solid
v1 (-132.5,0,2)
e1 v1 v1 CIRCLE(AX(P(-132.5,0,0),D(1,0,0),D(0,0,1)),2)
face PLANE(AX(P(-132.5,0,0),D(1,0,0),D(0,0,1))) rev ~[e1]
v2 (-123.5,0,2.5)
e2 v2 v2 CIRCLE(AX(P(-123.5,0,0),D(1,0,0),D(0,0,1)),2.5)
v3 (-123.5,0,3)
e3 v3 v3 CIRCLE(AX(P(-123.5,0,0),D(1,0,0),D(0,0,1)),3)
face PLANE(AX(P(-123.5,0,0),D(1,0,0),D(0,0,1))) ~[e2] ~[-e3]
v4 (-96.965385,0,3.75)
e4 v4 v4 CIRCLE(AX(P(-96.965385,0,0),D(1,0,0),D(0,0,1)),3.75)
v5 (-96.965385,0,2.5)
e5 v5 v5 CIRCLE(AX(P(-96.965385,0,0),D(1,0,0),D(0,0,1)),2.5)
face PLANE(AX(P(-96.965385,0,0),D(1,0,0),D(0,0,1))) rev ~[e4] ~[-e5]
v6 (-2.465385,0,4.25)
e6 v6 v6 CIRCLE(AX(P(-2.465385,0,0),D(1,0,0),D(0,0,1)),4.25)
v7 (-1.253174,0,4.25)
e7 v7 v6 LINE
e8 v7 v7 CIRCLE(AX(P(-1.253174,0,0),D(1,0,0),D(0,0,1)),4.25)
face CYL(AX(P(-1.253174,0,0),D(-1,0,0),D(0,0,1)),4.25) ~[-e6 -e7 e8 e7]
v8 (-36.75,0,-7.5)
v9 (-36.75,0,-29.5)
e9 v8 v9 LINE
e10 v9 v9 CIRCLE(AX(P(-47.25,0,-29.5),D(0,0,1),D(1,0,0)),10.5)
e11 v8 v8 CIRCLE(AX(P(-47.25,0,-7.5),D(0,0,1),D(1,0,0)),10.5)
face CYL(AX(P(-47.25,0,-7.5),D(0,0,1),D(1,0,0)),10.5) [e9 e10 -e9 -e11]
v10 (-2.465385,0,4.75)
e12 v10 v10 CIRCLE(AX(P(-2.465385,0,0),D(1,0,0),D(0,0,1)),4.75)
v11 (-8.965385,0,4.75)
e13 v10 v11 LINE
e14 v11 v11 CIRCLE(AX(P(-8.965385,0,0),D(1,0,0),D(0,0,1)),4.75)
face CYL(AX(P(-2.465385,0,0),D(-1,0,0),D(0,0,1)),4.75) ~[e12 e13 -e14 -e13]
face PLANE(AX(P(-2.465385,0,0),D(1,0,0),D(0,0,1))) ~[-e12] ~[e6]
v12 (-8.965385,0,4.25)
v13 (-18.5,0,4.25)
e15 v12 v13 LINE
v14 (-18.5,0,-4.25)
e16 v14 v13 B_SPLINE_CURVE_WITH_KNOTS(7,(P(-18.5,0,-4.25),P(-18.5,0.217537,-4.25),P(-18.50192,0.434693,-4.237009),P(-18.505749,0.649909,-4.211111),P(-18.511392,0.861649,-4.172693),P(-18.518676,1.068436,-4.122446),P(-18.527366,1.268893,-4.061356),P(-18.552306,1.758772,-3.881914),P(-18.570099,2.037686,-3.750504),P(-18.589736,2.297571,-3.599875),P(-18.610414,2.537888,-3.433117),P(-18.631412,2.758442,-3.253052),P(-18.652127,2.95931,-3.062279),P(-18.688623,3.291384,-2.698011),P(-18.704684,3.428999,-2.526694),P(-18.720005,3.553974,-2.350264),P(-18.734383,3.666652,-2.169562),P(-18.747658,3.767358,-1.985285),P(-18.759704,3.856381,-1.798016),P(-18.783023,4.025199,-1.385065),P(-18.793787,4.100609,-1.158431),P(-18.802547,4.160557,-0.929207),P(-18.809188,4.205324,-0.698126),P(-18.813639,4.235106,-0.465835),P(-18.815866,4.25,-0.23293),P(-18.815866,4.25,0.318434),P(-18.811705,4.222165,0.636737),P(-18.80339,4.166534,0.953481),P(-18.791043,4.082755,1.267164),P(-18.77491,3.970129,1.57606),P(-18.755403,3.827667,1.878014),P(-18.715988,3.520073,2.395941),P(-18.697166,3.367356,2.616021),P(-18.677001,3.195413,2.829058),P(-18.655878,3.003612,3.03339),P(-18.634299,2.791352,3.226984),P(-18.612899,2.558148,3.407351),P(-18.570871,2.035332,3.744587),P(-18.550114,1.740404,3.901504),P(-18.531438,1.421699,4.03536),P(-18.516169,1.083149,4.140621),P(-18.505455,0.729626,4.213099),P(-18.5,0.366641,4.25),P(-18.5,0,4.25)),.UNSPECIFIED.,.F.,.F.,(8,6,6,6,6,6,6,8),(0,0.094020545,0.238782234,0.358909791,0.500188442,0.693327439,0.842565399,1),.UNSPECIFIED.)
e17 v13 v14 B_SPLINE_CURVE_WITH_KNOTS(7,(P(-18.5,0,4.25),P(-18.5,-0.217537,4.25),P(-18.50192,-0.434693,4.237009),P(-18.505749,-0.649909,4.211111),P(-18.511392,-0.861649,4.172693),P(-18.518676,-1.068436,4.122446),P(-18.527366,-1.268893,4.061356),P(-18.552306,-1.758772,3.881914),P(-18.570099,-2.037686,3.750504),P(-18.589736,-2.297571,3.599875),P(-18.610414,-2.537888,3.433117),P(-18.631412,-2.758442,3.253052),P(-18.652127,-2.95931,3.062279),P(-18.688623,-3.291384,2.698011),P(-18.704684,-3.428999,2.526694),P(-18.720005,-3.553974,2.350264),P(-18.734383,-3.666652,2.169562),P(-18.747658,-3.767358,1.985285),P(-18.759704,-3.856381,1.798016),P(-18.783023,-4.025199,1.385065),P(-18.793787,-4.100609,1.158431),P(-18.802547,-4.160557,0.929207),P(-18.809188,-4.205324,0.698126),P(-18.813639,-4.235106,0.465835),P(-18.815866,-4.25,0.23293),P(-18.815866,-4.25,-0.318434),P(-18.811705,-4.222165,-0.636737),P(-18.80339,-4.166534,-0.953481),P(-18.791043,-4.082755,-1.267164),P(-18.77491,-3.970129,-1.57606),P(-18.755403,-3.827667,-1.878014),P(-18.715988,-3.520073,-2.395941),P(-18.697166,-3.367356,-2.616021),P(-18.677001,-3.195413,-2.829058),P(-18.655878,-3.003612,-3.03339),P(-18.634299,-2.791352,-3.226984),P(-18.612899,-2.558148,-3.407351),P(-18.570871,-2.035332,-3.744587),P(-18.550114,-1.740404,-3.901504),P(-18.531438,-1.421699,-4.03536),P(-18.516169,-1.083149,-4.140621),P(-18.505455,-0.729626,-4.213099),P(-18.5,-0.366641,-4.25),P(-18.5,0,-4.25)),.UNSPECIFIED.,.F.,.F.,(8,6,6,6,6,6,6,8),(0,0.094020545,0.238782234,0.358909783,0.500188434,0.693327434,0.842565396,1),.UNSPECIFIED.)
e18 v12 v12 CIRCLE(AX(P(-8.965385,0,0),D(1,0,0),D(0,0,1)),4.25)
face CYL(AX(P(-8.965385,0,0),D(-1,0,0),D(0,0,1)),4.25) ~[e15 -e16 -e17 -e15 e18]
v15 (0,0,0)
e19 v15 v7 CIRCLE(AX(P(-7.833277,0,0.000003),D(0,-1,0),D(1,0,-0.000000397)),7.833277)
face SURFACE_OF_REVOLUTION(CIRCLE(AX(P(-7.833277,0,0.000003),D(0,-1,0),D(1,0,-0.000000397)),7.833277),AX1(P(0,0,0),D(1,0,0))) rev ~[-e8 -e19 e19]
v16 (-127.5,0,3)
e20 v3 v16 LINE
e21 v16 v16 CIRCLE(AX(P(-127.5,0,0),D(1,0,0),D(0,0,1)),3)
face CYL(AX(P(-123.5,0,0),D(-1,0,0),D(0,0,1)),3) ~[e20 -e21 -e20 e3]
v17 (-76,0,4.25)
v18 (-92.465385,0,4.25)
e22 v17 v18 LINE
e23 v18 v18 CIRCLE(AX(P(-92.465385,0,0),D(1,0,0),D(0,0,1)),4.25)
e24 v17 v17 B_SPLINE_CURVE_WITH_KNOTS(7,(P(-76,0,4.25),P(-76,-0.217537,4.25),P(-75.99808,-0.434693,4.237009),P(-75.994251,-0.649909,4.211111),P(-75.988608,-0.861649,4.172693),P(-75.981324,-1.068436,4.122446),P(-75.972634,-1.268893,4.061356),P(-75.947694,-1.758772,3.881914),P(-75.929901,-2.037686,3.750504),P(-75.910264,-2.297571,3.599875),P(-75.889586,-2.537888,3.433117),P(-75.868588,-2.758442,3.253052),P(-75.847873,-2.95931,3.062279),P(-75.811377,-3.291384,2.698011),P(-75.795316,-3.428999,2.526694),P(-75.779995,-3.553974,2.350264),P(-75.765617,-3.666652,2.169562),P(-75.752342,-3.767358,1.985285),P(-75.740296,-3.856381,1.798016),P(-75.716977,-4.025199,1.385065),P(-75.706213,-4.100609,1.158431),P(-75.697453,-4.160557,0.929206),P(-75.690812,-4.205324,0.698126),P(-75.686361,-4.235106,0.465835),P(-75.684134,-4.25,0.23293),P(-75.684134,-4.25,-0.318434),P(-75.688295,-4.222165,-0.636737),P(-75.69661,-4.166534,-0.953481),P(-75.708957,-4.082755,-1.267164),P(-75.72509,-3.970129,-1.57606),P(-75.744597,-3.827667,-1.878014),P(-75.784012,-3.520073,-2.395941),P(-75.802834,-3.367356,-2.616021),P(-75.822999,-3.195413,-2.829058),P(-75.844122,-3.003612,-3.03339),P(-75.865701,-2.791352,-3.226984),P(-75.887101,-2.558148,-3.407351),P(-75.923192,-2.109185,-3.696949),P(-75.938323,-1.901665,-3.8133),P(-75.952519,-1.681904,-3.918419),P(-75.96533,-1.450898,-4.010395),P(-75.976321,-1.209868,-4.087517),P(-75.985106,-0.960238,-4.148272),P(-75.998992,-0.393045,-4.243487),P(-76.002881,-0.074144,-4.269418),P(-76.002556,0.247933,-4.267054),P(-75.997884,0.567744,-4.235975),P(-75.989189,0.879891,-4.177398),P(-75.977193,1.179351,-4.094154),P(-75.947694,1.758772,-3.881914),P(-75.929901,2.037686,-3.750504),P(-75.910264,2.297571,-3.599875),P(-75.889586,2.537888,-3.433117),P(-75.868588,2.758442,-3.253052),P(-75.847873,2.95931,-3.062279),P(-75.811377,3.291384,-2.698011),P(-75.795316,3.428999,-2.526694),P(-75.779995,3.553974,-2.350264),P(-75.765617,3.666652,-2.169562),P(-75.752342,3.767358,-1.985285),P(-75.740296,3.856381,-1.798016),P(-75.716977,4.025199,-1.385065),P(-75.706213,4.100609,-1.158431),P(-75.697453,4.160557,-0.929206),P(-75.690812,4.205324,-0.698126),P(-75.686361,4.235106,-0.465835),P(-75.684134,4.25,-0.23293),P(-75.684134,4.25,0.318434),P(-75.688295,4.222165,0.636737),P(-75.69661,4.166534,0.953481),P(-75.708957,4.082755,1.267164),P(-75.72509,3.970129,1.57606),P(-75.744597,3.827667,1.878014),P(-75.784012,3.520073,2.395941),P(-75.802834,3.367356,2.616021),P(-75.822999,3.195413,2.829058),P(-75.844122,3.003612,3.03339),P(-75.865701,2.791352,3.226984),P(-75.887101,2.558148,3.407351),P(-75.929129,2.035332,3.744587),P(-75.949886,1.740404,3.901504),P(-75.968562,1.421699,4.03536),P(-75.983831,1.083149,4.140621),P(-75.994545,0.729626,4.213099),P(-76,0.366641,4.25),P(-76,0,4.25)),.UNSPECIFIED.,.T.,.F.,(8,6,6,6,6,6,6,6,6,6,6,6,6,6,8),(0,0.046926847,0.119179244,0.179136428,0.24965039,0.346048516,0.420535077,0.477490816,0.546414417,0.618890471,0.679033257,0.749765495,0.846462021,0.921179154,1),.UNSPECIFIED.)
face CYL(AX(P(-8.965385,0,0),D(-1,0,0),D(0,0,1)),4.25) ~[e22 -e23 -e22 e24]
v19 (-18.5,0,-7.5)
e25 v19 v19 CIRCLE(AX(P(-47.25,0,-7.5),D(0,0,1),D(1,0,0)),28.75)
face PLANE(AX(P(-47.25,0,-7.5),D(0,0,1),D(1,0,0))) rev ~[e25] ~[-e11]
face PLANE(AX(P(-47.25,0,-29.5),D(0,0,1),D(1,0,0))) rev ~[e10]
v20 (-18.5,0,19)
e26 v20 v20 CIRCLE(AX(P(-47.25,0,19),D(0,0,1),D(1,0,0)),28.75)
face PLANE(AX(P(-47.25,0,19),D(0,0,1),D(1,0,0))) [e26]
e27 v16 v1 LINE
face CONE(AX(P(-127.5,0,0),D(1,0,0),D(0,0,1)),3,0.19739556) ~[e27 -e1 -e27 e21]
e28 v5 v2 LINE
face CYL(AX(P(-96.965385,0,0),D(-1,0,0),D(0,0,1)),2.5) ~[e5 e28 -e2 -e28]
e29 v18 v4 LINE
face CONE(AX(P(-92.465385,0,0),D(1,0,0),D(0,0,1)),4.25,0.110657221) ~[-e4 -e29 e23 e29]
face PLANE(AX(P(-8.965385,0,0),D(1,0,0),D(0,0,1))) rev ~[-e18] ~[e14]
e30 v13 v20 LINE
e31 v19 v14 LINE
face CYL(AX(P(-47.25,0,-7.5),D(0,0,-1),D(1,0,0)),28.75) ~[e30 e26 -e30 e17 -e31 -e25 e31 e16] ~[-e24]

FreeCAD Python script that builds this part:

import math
import FreeCAD as App
import Part
import Sketcher
from FreeCAD import Vector
Q = App.Units.Quantity

doc = App.newDocument("Part")
body = doc.addObject("PartDesign::Body", "Body")

# Sketch on XZ plane
sketch1 = body.newObject("Sketcher::SketchObject", "Sketch")
sketch1.AttachmentSupport = (doc.getObject("XZ_Plane"), [""])
sketch1.MapMode = "FlatFace"
sketch1.addGeometry([
    Part.LineSegment(Vector(-132.5, 0, 0), Vector(0, 0, 0)),  # 0
    Part.ArcOfCircle(Part.Circle(Vector(-7.833277, 0.000003, 0), Vector(0, 0, 1), 7.833277), math.radians(-0.000023), math.radians(32.857853)),  # 1
    Part.LineSegment(Vector(-1.253174, 4.25, 0), Vector(-2.465385, 4.25, 0)),  # 2
    Part.LineSegment(Vector(-2.465385, 4.25, 0), Vector(-2.465385, 4.75, 0)),  # 3
    Part.LineSegment(Vector(-2.465385, 4.75, 0), Vector(-8.965385, 4.75, 0)),  # 4
    Part.LineSegment(Vector(-8.965385, 4.75, 0), Vector(-8.965385, 4.25, 0)),  # 5
    Part.LineSegment(Vector(-8.965385, 4.25, 0), Vector(-92.465385, 4.25, 0)),  # 6
    Part.LineSegment(Vector(-92.465385, 4.25, 0), Vector(-96.965385, 3.75, 0)),  # 7
    Part.LineSegment(Vector(-96.965385, 3.75, 0), Vector(-96.965385, 2.5, 0)),  # 8
    Part.LineSegment(Vector(-96.965385, 2.5, 0), Vector(-123.5, 2.5, 0)),  # 9
    Part.LineSegment(Vector(-123.5, 2.5, 0), Vector(-123.5, 3, 0)),  # 10
    Part.LineSegment(Vector(-123.5, 3, 0), Vector(-127.5, 3, 0)),  # 11
    Part.LineSegment(Vector(-127.5, 3, 0), Vector(-132.5, 2, 0)),  # 12
    Part.LineSegment(Vector(-132.5, 2, 0), Vector(-132.5, 0, 0)),  # 13
], False)
sketch1.addConstraint([
    Sketcher.Constraint("Coincident", 0, 2, 1, 1),
    Sketcher.Constraint("Coincident", 1, 2, 2, 1),
    Sketcher.Constraint("Coincident", 2, 2, 3, 1),
    Sketcher.Constraint("Coincident", 3, 2, 4, 1),
    Sketcher.Constraint("Coincident", 4, 2, 5, 1),
    Sketcher.Constraint("Coincident", 5, 2, 6, 1),
    Sketcher.Constraint("Coincident", 6, 2, 7, 1),
    Sketcher.Constraint("Coincident", 7, 2, 8, 1),
    Sketcher.Constraint("Coincident", 8, 2, 9, 1),
    Sketcher.Constraint("Coincident", 9, 2, 10, 1),
    Sketcher.Constraint("Coincident", 10, 2, 11, 1),
    Sketcher.Constraint("Coincident", 11, 2, 12, 1),
    Sketcher.Constraint("Coincident", 12, 2, 13, 1),
    Sketcher.Constraint("Coincident", 13, 2, 0, 1),
    Sketcher.Constraint("Horizontal", 0),
    Sketcher.Constraint("Horizontal", 2),
    Sketcher.Constraint("Vertical", 3),
    Sketcher.Constraint("Horizontal", 4),
    Sketcher.Constraint("Vertical", 5),
    Sketcher.Constraint("Horizontal", 6),
    Sketcher.Constraint("Vertical", 8),
    Sketcher.Constraint("Horizontal", 9),
    Sketcher.Constraint("Vertical", 10),
    Sketcher.Constraint("Horizontal", 11),
    Sketcher.Constraint("Vertical", 13),
    Sketcher.Constraint("Coincident", 0, 2, -1, 1),
    Sketcher.Constraint("Horizontal", 2, 2, 5, 2),
    Sketcher.Constraint("Equal", 5, 10),
    Sketcher.Constraint("DistanceX", 11, 2, 11, 1, Q("4 mm")),
    Sketcher.Constraint("DistanceY", 13, 2, 13, 1, Q("2 mm")),
    Sketcher.Constraint("DistanceX", 0, 1, 0, 2, Q("132.5 mm")),
    Sketcher.Constraint("DistanceX", 4, 2, 4, 1, Q("6.5 mm")),
    Sketcher.Constraint("DistanceX", 6, 2, 6, 1, Q("83.5 mm")),
    Sketcher.Constraint("DistanceY", 3, 1, 3, 2, Q("0.5 mm")),
    Sketcher.Constraint("DistanceY", -1, 1, 10, 2, Q("3 mm")),
    Sketcher.Constraint("DistanceX", 7, 2, 5, 2, Q("88 mm")),
    Sketcher.Constraint("DistanceY", 7, 2, 4, 2, Q("1 mm")),
    Sketcher.Constraint("DistanceX", 12, 2, 11, 2, Q("5 mm")),
    Sketcher.Constraint("DistanceY", 8, 2, 8, 1, Q("1.25 mm")),
    Sketcher.Constraint("Radius", 1, Q("7.833277 mm")),
    Sketcher.Constraint("DistanceX", 2, 2, 2, 1, Q("1.212211 mm")),
    Sketcher.Constraint("DistanceX", 9, 2, 9, 1, Q("26.534615 mm")),
])
revolution = body.newObject("PartDesign::Revolution", "Revolution")
revolution.Profile = sketch1
revolution.ReferenceAxis = (sketch1, ["H_Axis"])
revolution.Angle = 360

# Sketch on XY plane
sketch2 = body.newObject("Sketcher::SketchObject", "Sketch001")
sketch2.AttachmentSupport = (doc.getObject("XY_Plane"), [""])
sketch2.MapMode = "FlatFace"
sketch2.AttachmentOffset = App.Placement(Vector(0, 0, -7.5), App.Rotation())
sketch2.addGeometry(Part.Circle(Vector(-47.25, 0, 0), Vector(0, 0, 1), 28.75), False)
sketch2.addConstraint([
    Sketcher.Constraint("PointOnObject", 0, 3, -1),
    Sketcher.Constraint("Diameter", 0, Q("57.5 mm")),
    Sketcher.Constraint("DistanceX", 0, 3, -1, 1, Q("47.25 mm")),
])
pad1 = body.newObject("PartDesign::Pad", "Pad")
pad1.Profile = sketch2
pad1.Length = 26.5

# Sketch on XY plane
sketch3 = body.newObject("Sketcher::SketchObject", "Sketch002")
sketch3.AttachmentSupport = (doc.getObject("XY_Plane"), [""])
sketch3.MapMode = "FlatFace"
sketch3.AttachmentOffset = App.Placement(Vector(0, 0, -7.5), App.Rotation())
sketch3.addGeometry(Part.Circle(Vector(-47.25, 0, 0), Vector(0, 0, 1), 10.5), False)
sketch3.addConstraint([
    Sketcher.Constraint("PointOnObject", 0, 3, -1),
    Sketcher.Constraint("Diameter", 0, Q("21 mm")),
    Sketcher.Constraint("DistanceX", 0, 3, -1, 1, Q("47.25 mm")),
])
pad2 = body.newObject("PartDesign::Pad", "Pad001")
pad2.Profile = sketch3
pad2.Length = 22
pad2.Reversed = True

doc.recompute()
